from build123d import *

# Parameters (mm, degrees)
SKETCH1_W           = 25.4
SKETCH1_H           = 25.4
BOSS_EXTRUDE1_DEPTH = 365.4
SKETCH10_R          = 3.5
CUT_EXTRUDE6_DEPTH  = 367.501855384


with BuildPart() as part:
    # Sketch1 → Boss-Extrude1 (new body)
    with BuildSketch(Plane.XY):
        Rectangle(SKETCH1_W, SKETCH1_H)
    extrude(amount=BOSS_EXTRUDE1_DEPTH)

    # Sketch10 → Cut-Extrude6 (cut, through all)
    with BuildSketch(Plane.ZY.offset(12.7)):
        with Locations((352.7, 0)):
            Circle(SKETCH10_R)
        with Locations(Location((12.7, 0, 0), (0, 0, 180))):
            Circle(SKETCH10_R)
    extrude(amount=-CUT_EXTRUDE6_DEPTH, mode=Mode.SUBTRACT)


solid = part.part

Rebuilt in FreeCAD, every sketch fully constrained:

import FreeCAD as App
import Part
import Sketcher
from FreeCAD import Vector

doc = App.newDocument("Part")
body = doc.addObject("PartDesign::Body", "Body")

# Sketch on XY plane
sketch1 = doc.addObject("Sketcher::SketchObject", "Sketch")
body.addObject(sketch1)
sketch1.AttachmentSupport = (doc.XY_Plane, [""])
sketch1.MapMode = "FlatFace"
sketch1.addGeometry(Part.LineSegment(Vector(-13, 13, 0), Vector(-13, -13, 0)), False)
sketch1.addGeometry(Part.LineSegment(Vector(-13, -13, 0), Vector(13, -13, 0)), False)
sketch1.addGeometry(Part.LineSegment(Vector(13, -13, 0), Vector(13, 13, 0)), False)
sketch1.addGeometry(Part.LineSegment(Vector(13, 13, 0), Vector(-13, 13, 0)), False)
sketch1.addConstraint(Sketcher.Constraint("Coincident", 0, 2, 1, 1))
sketch1.addConstraint(Sketcher.Constraint("Coincident", 1, 2, 2, 1))
sketch1.addConstraint(Sketcher.Constraint("Coincident", 2, 2, 3, 1))
sketch1.addConstraint(Sketcher.Constraint("Coincident", 3, 2, 0, 1))
sketch1.addConstraint(Sketcher.Constraint("Vertical", 0))
sketch1.addConstraint(Sketcher.Constraint("Horizontal", 1))
sketch1.addConstraint(Sketcher.Constraint("Vertical", 2))
sketch1.addConstraint(Sketcher.Constraint("Horizontal", 3))
sketch1.addConstraint(Sketcher.Constraint("Symmetric", 0, 2, 2, 2, -1, 1))
sketch1.addConstraint(Sketcher.Constraint("Equal", 3, 0))
sketch1.addConstraint(Sketcher.Constraint("DistanceX", 1, 1, 1, 2, 25.4))
pad1 = doc.addObject("PartDesign::Pad", "Pad")
body.addObject(pad1)
pad1.Profile = sketch1
pad1.Length = 365.4

# Sketch on YZ plane
sketch2 = doc.addObject("Sketcher::SketchObject", "Sketch001")
body.addObject(sketch2)
sketch2.AttachmentSupport = (doc.YZ_Plane, [""])
sketch2.MapMode = "FlatFace"
sketch2.AttachmentOffset = App.Placement(Vector(0, 0, -12.7), App.Rotation())
sketch2.addGeometry(Part.Circle(Vector(0, 352.7, 0), Vector(0, 0, 1), 3.5), False)
sketch2.addGeometry(Part.Circle(Vector(0, 12.7, 0), Vector(0, 0, 1), 3.5), False)
sketch2.addConstraint(Sketcher.Constraint("Equal", 0, 1))
sketch2.addConstraint(Sketcher.Constraint("PointOnObject", 0, 3, -2))
sketch2.addConstraint(Sketcher.Constraint("PointOnObject", 1, 3, -2))
sketch2.addConstraint(Sketcher.Constraint("Diameter", 0, 7.0))
sketch2.addConstraint(Sketcher.Constraint("DistanceY", 1, 3, 0, 3, 340.0))
sketch2.addConstraint(Sketcher.Constraint("DistanceY", -1, 1, 0, 3, 352.7))
pocket1 = doc.addObject("PartDesign::Pocket", "Pocket")
body.addObject(pocket1)
pocket1.Profile = sketch2
pocket1.Type = "ThroughAll"
pocket1.Reversed = True

doc.recompute()
